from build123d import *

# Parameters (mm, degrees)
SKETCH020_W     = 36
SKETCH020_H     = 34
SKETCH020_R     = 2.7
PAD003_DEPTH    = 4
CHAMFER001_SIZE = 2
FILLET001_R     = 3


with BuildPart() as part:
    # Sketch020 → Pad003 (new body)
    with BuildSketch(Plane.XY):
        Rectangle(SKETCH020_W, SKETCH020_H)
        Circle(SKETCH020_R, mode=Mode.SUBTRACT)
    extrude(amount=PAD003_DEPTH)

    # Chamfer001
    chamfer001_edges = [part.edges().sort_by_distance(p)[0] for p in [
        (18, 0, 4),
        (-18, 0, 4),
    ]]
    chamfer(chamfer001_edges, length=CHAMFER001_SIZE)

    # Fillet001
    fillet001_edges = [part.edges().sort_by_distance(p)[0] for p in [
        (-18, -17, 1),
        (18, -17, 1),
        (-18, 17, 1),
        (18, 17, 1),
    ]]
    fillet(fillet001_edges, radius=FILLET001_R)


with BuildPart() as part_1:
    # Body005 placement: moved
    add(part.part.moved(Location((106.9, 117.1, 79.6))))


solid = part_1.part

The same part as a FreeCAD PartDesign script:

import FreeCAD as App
import Part
import Sketcher
Q = App.Units.Quantity


def edges_at(feature, points):
    """Names of the edges that pass closest to the given points."""
    edges = feature.Shape.Edges
    near = lambda p: min(range(len(edges)), key=lambda i: edges[i].distToShape(Part.Vertex(*p))[0])
    return sorted({f"Edge{near(p) + 1}" for p in points})


def add_polygon(sketch, points):
    """Adds a closed chain of lines whose ends are joined by coincident constraints."""
    first, n = sketch.GeometryCount, len(points)
    for a, b in zip(points, points[1:] + points[:1]):
        sketch.addGeometry(Part.LineSegment(App.Vector(*a, 0), App.Vector(*b, 0)), False)
    for i in range(n):
        sketch.addConstraint(Sketcher.Constraint("Coincident", first + i, 2, first + (i + 1) % n, 1))

doc = App.newDocument("Part")
body = doc.addObject("PartDesign::Body", "Body")

sketch1 = doc.addObject("Sketcher::SketchObject", "Sketch")
body.addObject(sketch1)
sketch1.AttachmentSupport = (doc.XY_Plane, [""])
sketch1.MapMode = "FlatFace"
add_polygon(sketch1, [(-18, 17), (-18, -17), (18, -17), (18, 17)])
sketch1.addGeometry(Part.Circle(App.Vector(0, 0, 0), App.Vector(0, 0, 1), 2.7), False)
sketch1.addConstraint([
    Sketcher.Constraint("Vertical", 0),
    Sketcher.Constraint("Horizontal", 1),
    Sketcher.Constraint("Vertical", 2),
    Sketcher.Constraint("Horizontal", 3),
    Sketcher.Constraint("Coincident", 4, 3, -1, 1),
    Sketcher.Constraint("Symmetric", 0, 2, 2, 2, -1, 1),
    Sketcher.Constraint("Diameter", 4, Q("5.4 mm")),
    Sketcher.Constraint("DistanceX", 1, 1, 1, 2, Q("36 mm")),
    Sketcher.Constraint("DistanceY", 0, 2, 0, 1, Q("34 mm")),
])
pad1 = doc.addObject("PartDesign::Pad", "Pad")
body.addObject(pad1)
pad1.Profile = sketch1
pad1.Length = 4
doc.recompute()

chamfer = doc.addObject("PartDesign::Chamfer", "Chamfer")
body.addObject(chamfer)
chamfer.Base = (pad1, edges_at(pad1, [(18, 0, 4), (-18, 0, 4)]))
chamfer.Size = 2
doc.recompute()

fillet = doc.addObject("PartDesign::Fillet", "Fillet")
body.addObject(fillet)
fillet.Base = (chamfer, edges_at(chamfer, [
    (-18, -17, 1),
    (18, -17, 1),
    (-18, 17, 1),
    (18, 17, 1),
]))
fillet.Radius = 3
body2 = doc.addObject("PartDesign::Body", "Body001")
doc.recompute()

body.Placement = App.Placement(App.Vector(106.9, 117.1, 79.6), App.Rotation(App.Vector(0, 0, 1), 0))
boolean = doc.addObject("PartDesign::Boolean", "Boolean")
body2.addObject(boolean)
boolean.Type = "Fuse"
boolean.addObjects([body])

doc.recompute()
